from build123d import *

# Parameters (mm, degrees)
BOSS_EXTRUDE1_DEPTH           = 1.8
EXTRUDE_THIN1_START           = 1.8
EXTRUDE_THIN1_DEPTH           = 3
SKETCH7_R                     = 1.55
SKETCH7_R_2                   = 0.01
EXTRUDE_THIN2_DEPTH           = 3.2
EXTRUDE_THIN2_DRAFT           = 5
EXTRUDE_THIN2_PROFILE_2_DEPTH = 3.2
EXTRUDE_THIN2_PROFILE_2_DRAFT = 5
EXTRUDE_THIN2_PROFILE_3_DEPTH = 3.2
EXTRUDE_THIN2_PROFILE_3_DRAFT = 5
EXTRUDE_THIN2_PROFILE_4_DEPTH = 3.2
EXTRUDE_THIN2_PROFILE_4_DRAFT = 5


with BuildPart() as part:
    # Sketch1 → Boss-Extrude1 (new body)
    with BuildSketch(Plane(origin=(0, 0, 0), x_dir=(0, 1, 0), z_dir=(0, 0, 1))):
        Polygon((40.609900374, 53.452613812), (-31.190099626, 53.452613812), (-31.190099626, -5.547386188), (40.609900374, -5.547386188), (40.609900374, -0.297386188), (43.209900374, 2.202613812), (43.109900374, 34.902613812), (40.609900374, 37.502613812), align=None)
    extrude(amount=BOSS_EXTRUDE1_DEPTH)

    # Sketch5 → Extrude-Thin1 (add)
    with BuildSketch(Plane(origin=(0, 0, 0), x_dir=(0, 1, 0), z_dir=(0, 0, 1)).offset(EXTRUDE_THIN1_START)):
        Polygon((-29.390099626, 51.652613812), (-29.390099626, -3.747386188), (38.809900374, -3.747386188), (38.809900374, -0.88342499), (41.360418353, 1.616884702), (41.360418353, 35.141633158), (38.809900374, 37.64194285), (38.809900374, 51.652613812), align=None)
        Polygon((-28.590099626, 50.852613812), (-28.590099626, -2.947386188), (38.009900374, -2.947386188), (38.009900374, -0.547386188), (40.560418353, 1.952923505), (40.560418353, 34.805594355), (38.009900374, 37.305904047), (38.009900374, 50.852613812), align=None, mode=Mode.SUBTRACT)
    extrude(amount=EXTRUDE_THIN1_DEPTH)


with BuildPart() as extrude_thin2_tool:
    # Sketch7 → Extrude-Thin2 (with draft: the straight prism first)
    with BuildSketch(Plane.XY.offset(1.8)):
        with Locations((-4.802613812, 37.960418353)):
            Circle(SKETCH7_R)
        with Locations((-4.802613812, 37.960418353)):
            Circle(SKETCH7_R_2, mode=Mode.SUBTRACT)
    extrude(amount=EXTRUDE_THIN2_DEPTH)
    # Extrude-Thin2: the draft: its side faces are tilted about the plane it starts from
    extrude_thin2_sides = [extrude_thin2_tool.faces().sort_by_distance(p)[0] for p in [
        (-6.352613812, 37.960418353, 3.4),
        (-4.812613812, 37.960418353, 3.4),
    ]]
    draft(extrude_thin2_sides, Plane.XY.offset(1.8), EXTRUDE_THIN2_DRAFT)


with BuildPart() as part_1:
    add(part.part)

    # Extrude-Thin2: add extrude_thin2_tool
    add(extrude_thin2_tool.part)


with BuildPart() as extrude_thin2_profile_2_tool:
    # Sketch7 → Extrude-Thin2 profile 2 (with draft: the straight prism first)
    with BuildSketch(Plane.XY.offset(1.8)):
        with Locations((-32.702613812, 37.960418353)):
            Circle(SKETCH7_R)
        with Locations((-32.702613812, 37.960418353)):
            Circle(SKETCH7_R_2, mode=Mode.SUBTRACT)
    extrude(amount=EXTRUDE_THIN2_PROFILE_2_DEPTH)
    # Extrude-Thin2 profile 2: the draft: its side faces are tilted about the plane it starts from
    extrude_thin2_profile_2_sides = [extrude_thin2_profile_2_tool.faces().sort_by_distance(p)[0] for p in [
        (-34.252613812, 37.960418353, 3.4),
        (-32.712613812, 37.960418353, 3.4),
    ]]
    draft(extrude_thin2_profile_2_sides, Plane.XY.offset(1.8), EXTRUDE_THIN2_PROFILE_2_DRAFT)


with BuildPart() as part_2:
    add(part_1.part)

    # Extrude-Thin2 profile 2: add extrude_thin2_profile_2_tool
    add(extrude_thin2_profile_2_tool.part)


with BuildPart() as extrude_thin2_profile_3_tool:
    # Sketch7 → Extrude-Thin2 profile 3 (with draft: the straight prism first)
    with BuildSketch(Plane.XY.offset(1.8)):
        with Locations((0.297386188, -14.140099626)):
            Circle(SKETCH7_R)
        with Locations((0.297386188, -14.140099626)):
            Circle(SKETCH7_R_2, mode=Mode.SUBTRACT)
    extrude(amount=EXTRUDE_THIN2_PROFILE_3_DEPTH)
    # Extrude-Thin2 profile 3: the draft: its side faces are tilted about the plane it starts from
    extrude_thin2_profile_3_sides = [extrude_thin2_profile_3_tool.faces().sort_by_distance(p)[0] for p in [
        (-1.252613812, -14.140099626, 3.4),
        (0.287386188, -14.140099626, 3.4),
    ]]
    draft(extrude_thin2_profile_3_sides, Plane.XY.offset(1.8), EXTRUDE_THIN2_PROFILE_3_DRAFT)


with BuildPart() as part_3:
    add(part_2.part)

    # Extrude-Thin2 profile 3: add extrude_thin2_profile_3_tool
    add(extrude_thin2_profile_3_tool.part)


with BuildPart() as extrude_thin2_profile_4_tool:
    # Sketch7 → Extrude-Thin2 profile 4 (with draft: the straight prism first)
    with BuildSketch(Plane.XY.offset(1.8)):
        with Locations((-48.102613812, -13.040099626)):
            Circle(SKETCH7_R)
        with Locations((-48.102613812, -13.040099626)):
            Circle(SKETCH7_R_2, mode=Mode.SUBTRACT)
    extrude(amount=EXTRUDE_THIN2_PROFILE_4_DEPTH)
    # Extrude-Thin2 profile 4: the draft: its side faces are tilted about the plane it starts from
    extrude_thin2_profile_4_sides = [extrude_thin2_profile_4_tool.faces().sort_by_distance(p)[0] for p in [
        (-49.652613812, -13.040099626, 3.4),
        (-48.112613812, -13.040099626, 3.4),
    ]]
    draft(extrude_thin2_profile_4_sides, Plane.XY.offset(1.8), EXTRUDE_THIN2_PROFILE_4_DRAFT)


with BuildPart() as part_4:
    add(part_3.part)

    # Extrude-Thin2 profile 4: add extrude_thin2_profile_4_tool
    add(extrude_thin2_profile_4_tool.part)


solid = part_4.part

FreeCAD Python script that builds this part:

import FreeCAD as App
import Part
import Sketcher
from FreeCAD import Vector
Q = App.Units.Quantity


def faces_at(feature, points):
    """Names of the faces that lie closest to the given points."""
    faces = feature.Shape.Faces
    near = lambda p: min(range(len(faces)), key=lambda i: faces[i].distToShape(Part.Vertex(*p))[0])
    return sorted({f"Face{near(p) + 1}" for p in points})

doc = App.newDocument("Part")
body = doc.addObject("PartDesign::Body", "Body")

sketch1 = doc.addObject("Sketcher::SketchObject", "Sketch")
body.addObject(sketch1)
sketch1.AttachmentSupport = (doc.XY_Plane, [""])
sketch1.MapMode = "FlatFace"
sketch1.addGeometry([
    Part.LineSegment(Vector(-53.5, 40.6, 0), Vector(-53.5, -31.2, 0)),
    Part.LineSegment(Vector(-53.5, -31.2, 0), Vector(5.5, -31.2, 0)),
    Part.LineSegment(Vector(5.5, -31.2, 0), Vector(5.5, 40.6, 0)),
    Part.LineSegment(Vector(5.5, 40.6, 0), Vector(0.3, 40.6, 0)),
    Part.LineSegment(Vector(0.3, 40.6, 0), Vector(-2.2, 43.2, 0)),
    Part.LineSegment(Vector(-2.2, 43.2, 0), Vector(-34.9, 43.1, 0)),
    Part.LineSegment(Vector(-34.9, 43.1, 0), Vector(-37.5, 40.6, 0)),
    Part.LineSegment(Vector(-37.5, 40.6, 0), Vector(-53.5, 40.6, 0)),
], False)
sketch1.addConstraint([
    Sketcher.Constraint("Coincident", 0, 2, 1, 1),
    Sketcher.Constraint("Coincident", 1, 2, 2, 1),
    Sketcher.Constraint("Coincident", 2, 2, 3, 1),
    Sketcher.Constraint("Coincident", 3, 2, 4, 1),
    Sketcher.Constraint("Coincident", 4, 2, 5, 1),
    Sketcher.Constraint("Coincident", 5, 2, 6, 1),
    Sketcher.Constraint("Coincident", 6, 2, 7, 1),
    Sketcher.Constraint("Coincident", 7, 2, 0, 1),
    Sketcher.Constraint("Vertical", 0),
    Sketcher.Constraint("Horizontal", 1),
    Sketcher.Constraint("Vertical", 2),
    Sketcher.Constraint("Horizontal", 3),
    Sketcher.Constraint("Horizontal", 7),
    Sketcher.Constraint("Perpendicular", 4, 6),
    Sketcher.Constraint("Horizontal", 3, 2, 6, 2),
    Sketcher.Constraint("Equal", 4, 6),
    Sketcher.Constraint("DistanceX", 1, 1, 1, 2, Q("59 mm")),
    Sketcher.Constraint("DistanceY", 0, 2, 0, 1, Q("71.8 mm")),
    Sketcher.Constraint("DistanceX", 3, 2, 3, 1, Q("5.25 mm")),
    Sketcher.Constraint("DistanceX", 7, 2, 7, 1, Q("15.95 mm")),
    Sketcher.Constraint("DistanceX", 4, 2, 3, 2, Q("2.5 mm")),
    Sketcher.Constraint("DistanceY", 3, 2, 4, 2, Q("2.6 mm")),
    Sketcher.Constraint("DistanceY", 0, 2, -1, 1, Q("31.1901 mm")),
    Sketcher.Constraint("DistanceX", 0, 2, -1, 1, Q("53.452614 mm")),
])
pad1 = doc.addObject("PartDesign::Pad", "Pad")
body.addObject(pad1)
pad1.Profile = sketch1
pad1.Length = 1.8

sketch2 = doc.addObject("Sketcher::SketchObject", "Sketch001")
body.addObject(sketch2)
sketch2.AttachmentSupport = (doc.XY_Plane, [""])
sketch2.MapMode = "FlatFace"
sketch2.AttachmentOffset = App.Placement(Vector(0, 0, 1.8), App.Rotation())
sketch2.addGeometry([
    Part.LineSegment(Vector(-51.7, -29.4, 0), Vector(3.7, -29.4, 0)),
    Part.LineSegment(Vector(3.7, -29.4, 0), Vector(3.7, 38.8, 0)),
    Part.LineSegment(Vector(3.7, 38.8, 0), Vector(0.9, 38.8, 0)),
    Part.LineSegment(Vector(0.9, 38.8, 0), Vector(-1.6, 41.4, 0)),
    Part.LineSegment(Vector(-1.6, 41.4, 0), Vector(-35.1, 41.4, 0)),
    Part.LineSegment(Vector(-35.1, 41.4, 0), Vector(-37.6, 38.8, 0)),
    Part.LineSegment(Vector(-37.6, 38.8, 0), Vector(-51.7, 38.8, 0)),
    Part.LineSegment(Vector(-51.7, 38.8, 0), Vector(-51.7, -29.4, 0)),
    Part.LineSegment(Vector(2.9, -28.6, 0), Vector(-50.9, -28.6, 0)),
    Part.LineSegment(Vector(-50.9, -28.6, 0), Vector(-50.9, 38, 0)),
    Part.LineSegment(Vector(-50.9, 38, 0), Vector(-37.3, 38, 0)),
    Part.LineSegment(Vector(-37.3, 38, 0), Vector(-34.8, 40.6, 0)),
    Part.LineSegment(Vector(-34.8, 40.6, 0), Vector(-2, 40.6, 0)),
    Part.LineSegment(Vector(-2, 40.6, 0), Vector(0.5, 38, 0)),
    Part.LineSegment(Vector(0.5, 38, 0), Vector(2.9, 38, 0)),
    Part.LineSegment(Vector(2.9, 38, 0), Vector(2.9, -28.6, 0)),
], False)
sketch2.addConstraint([
    Sketcher.Constraint("Coincident", 0, 2, 1, 1),
    Sketcher.Constraint("Coincident", 1, 2, 2, 1),
    Sketcher.Constraint("Coincident", 2, 2, 3, 1),
    Sketcher.Constraint("Coincident", 3, 2, 4, 1),
    Sketcher.Constraint("Coincident", 4, 2, 5, 1),
    Sketcher.Constraint("Coincident", 5, 2, 6, 1),
    Sketcher.Constraint("Coincident", 6, 2, 7, 1),
    Sketcher.Constraint("Coincident", 7, 2, 0, 1),
    Sketcher.Constraint("Coincident", 8, 2, 9, 1),
    Sketcher.Constraint("Coincident", 9, 2, 10, 1),
    Sketcher.Constraint("Coincident", 10, 2, 11, 1),
    Sketcher.Constraint("Coincident", 11, 2, 12, 1),
    Sketcher.Constraint("Coincident", 12, 2, 13, 1),
    Sketcher.Constraint("Coincident", 13, 2, 14, 1),
    Sketcher.Constraint("Coincident", 14, 2, 15, 1),
    Sketcher.Constraint("Coincident", 15, 2, 8, 1),
    Sketcher.Constraint("Horizontal", 0),
    Sketcher.Constraint("Vertical", 1),
    Sketcher.Constraint("Horizontal", 2),
    Sketcher.Constraint("Horizontal", 4),
    Sketcher.Constraint("Horizontal", 6),
    Sketcher.Constraint("Vertical", 7),
    Sketcher.Constraint("Horizontal", 8),
    Sketcher.Constraint("Vertical", 9),
    Sketcher.Constraint("Horizontal", 10),
    Sketcher.Constraint("Horizontal", 12),
    Sketcher.Constraint("Horizontal", 14),
    Sketcher.Constraint("Vertical", 15),
    Sketcher.Constraint("Parallel", 5, 11),
    Sketcher.Constraint("Parallel", 3, 13),
    Sketcher.Constraint("Horizontal", 2, 2, 5, 2),
    Sketcher.Constraint("Horizontal", 10, 2, 13, 2),
    Sketcher.Constraint("Equal", 3, 5),
    Sketcher.Constraint("Equal", 5, 11),
    Sketcher.Constraint("DistanceX", 0, 1, 0, 2, Q("55.4 mm")),
    Sketcher.Constraint("DistanceX", 8, 2, 8, 1, Q("53.8 mm")),
    Sketcher.Constraint("DistanceX", 14, 1, 14, 2, Q("2.4 mm")),
    Sketcher.Constraint("DistanceY", 1, 1, 1, 2, Q("68.2 mm")),
    Sketcher.Constraint("DistanceY", 9, 1, 9, 2, Q("66.6 mm")),
    Sketcher.Constraint("DistanceX", 7, 2, 8, 2, Q("0.8 mm")),
    Sketcher.Constraint("DistanceY", 7, 2, 8, 2, Q("0.8 mm")),
    Sketcher.Constraint("DistanceX", 2, 2, 2, 1, Q("2.863961 mm")),
    Sketcher.Constraint("DistanceX", 4, 2, 4, 1, Q("33.524748 mm")),
    Sketcher.Constraint("DistanceX", 6, 2, 6, 1, Q("14.010671 mm")),
    Sketcher.Constraint("DistanceX", 10, 1, 10, 2, Q("13.54671 mm")),
    Sketcher.Constraint("DistanceY", 0, 2, -1, 1, Q("29.3901 mm")),
    Sketcher.Constraint("Distance", 3, Q("3.571651 mm")),
    Sketcher.Constraint("DistanceX", -1, 1, 0, 2, Q("3.747386 mm")),
])
pad2 = doc.addObject("PartDesign::Pad", "Pad001")
body.addObject(pad2)
pad2.Profile = sketch2
pad2.Length = 3
body2 = doc.addObject("PartDesign::Body", "Body001")

sketch3 = doc.addObject("Sketcher::SketchObject", "Sketch002")
body2.addObject(sketch3)
sketch3.AttachmentSupport = (doc.getObject("XY_Plane001"), [""])
sketch3.MapMode = "FlatFace"
sketch3.AttachmentOffset = App.Placement(Vector(0, 0, 1.8), App.Rotation())
sketch3.addGeometry([
    Part.Circle(Vector(-4.803, 37.96, 0), Vector(0, 0, 1), 1.55),
    Part.Circle(Vector(-4.803, 37.96, 0), Vector(0, 0, 1), 0.01),
], False)
sketch3.addConstraint([
    Sketcher.Constraint("Coincident", 1, 3, 0, 3),
    Sketcher.Constraint("Diameter", 0, Q("3.1 mm")),
    Sketcher.Constraint("Diameter", 1, Q("0.02 mm")),
    Sketcher.Constraint("DistanceY", -1, 1, 0, 3, Q("37.960418 mm")),
    Sketcher.Constraint("DistanceX", 0, 3, -1, 1, Q("4.802614 mm")),
])
pad3 = doc.addObject("PartDesign::Pad", "Pad002")
body2.addObject(pad3)
pad3.Profile = sketch3
pad3.Length = 3.2
doc.recompute()

datumplane = doc.addObject("PartDesign::Plane", "DatumPlane")
body2.addObject(datumplane)
datumplane.AttachmentSupport = (doc.getObject("XY_Plane001"), [""])
datumplane.MapMode = "FlatFace"
datumplane.AttachmentOffset = App.Placement(Vector(0, 0, 1.8), App.Rotation())
draft = doc.addObject("PartDesign::Draft", "Draft")
body2.addObject(draft)
draft.Base = (pad3, faces_at(pad3, [(-6.353, 37.96, 3.4), (-4.813, 37.96, 3.4)]))
draft.NeutralPlane = (datumplane, [""])
draft.Angle = 5
draft.Reversed = False
doc.recompute()

boolean = doc.addObject("PartDesign::Boolean", "Boolean")
body.addObject(boolean)
boolean.Type = "Fuse"
boolean.addObjects([body2])
body3 = doc.addObject("PartDesign::Body", "Body002")

sketch4 = doc.addObject("Sketcher::SketchObject", "Sketch003")
body3.addObject(sketch4)
sketch4.AttachmentSupport = (doc.getObject("XY_Plane002"), [""])
sketch4.MapMode = "FlatFace"
sketch4.AttachmentOffset = App.Placement(Vector(0, 0, 1.8), App.Rotation())
sketch4.addGeometry([
    Part.Circle(Vector(-32.703, 37.96, 0), Vector(0, 0, 1), 1.55),
    Part.Circle(Vector(-32.703, 37.96, 0), Vector(0, 0, 1), 0.01),
], False)
sketch4.addConstraint([
    Sketcher.Constraint("Coincident", 1, 3, 0, 3),
    Sketcher.Constraint("Diameter", 0, Q("3.1 mm")),
    Sketcher.Constraint("Diameter", 1, Q("0.02 mm")),
    Sketcher.Constraint("DistanceY", -1, 1, 0, 3, Q("37.960418 mm")),
    Sketcher.Constraint("DistanceX", 0, 3, -1, 1, Q("32.702614 mm")),
])
pad4 = doc.addObject("PartDesign::Pad", "Pad003")
body3.addObject(pad4)
pad4.Profile = sketch4
pad4.Length = 3.2
doc.recompute()

datumplane2 = doc.addObject("PartDesign::Plane", "DatumPlane001")
body3.addObject(datumplane2)
datumplane2.AttachmentSupport = (doc.getObject("XY_Plane002"), [""])
datumplane2.MapMode = "FlatFace"
datumplane2.AttachmentOffset = App.Placement(Vector(0, 0, 1.8), App.Rotation())
draft2 = doc.addObject("PartDesign::Draft", "Draft001")
body3.addObject(draft2)
draft2.Base = (pad4, faces_at(pad4, [(-34.253, 37.96, 3.4), (-32.713, 37.96, 3.4)]))
draft2.NeutralPlane = (datumplane2, [""])
draft2.Angle = 5
draft2.Reversed = False
doc.recompute()

boolean2 = doc.addObject("PartDesign::Boolean", "Boolean001")
body.addObject(boolean2)
boolean2.Type = "Fuse"
boolean2.addObjects([body3])
body4 = doc.addObject("PartDesign::Body", "Body003")

sketch5 = doc.addObject("Sketcher::SketchObject", "Sketch004")
body4.addObject(sketch5)
sketch5.AttachmentSupport = (doc.getObject("XY_Plane003"), [""])
sketch5.MapMode = "FlatFace"
sketch5.AttachmentOffset = App.Placement(Vector(0, 0, 1.8), App.Rotation())
sketch5.addGeometry([
    Part.Circle(Vector(0.297, -14.14, 0), Vector(0, 0, 1), 1.55),
    Part.Circle(Vector(0.297, -14.14, 0), Vector(0, 0, 1), 0.01),
], False)
sketch5.addConstraint([
    Sketcher.Constraint("Coincident", 1, 3, 0, 3),
    Sketcher.Constraint("Diameter", 0, Q("3.1 mm")),
    Sketcher.Constraint("Diameter", 1, Q("0.02 mm")),
    Sketcher.Constraint("DistanceY", 0, 3, -1, 1, Q("14.1401 mm")),
    Sketcher.Constraint("DistanceX", -1, 1, 0, 3, Q("0.297386 mm")),
])
pad5 = doc.addObject("PartDesign::Pad", "Pad004")
body4.addObject(pad5)
pad5.Profile = sketch5
pad5.Length = 3.2
doc.recompute()

datumplane3 = doc.addObject("PartDesign::Plane", "DatumPlane002")
body4.addObject(datumplane3)
datumplane3.AttachmentSupport = (doc.getObject("XY_Plane003"), [""])
datumplane3.MapMode = "FlatFace"
datumplane3.AttachmentOffset = App.Placement(Vector(0, 0, 1.8), App.Rotation())
draft3 = doc.addObject("PartDesign::Draft", "Draft002")
body4.addObject(draft3)
draft3.Base = (pad5, faces_at(pad5, [(-1.253, -14.14, 3.4), (0.287, -14.14, 3.4)]))
draft3.NeutralPlane = (datumplane3, [""])
draft3.Angle = 5
draft3.Reversed = False
doc.recompute()

boolean3 = doc.addObject("PartDesign::Boolean", "Boolean002")
body.addObject(boolean3)
boolean3.Type = "Fuse"
boolean3.addObjects([body4])
body5 = doc.addObject("PartDesign::Body", "Body004")

sketch6 = doc.addObject("Sketcher::SketchObject", "Sketch005")
body5.addObject(sketch6)
sketch6.AttachmentSupport = (doc.getObject("XY_Plane004"), [""])
sketch6.MapMode = "FlatFace"
sketch6.AttachmentOffset = App.Placement(Vector(0, 0, 1.8), App.Rotation())
sketch6.addGeometry([
    Part.Circle(Vector(-48.103, -13.04, 0), Vector(0, 0, 1), 1.55),
    Part.Circle(Vector(-48.103, -13.04, 0), Vector(0, 0, 1), 0.01),
], False)
sketch6.addConstraint([
    Sketcher.Constraint("Coincident", 1, 3, 0, 3),
    Sketcher.Constraint("Diameter", 0, Q("3.1 mm")),
    Sketcher.Constraint("Diameter", 1, Q("0.02 mm")),
    Sketcher.Constraint("DistanceY", 0, 3, -1, 1, Q("13.0401 mm")),
    Sketcher.Constraint("DistanceX", 0, 3, -1, 1, Q("48.102614 mm")),
])
pad6 = doc.addObject("PartDesign::Pad", "Pad005")
body5.addObject(pad6)
pad6.Profile = sketch6
pad6.Length = 3.2
doc.recompute()

datumplane4 = doc.addObject("PartDesign::Plane", "DatumPlane003")
body5.addObject(datumplane4)
datumplane4.AttachmentSupport = (doc.getObject("XY_Plane004"), [""])
datumplane4.MapMode = "FlatFace"
datumplane4.AttachmentOffset = App.Placement(Vector(0, 0, 1.8), App.Rotation())
draft4 = doc.addObject("PartDesign::Draft", "Draft003")
body5.addObject(draft4)
draft4.Base = (pad6, faces_at(pad6, [(-49.653, -13.04, 3.4), (-48.113, -13.04, 3.4)]))
draft4.NeutralPlane = (datumplane4, [""])
draft4.Angle = 5
draft4.Reversed = False
doc.recompute()

boolean4 = doc.addObject("PartDesign::Boolean", "Boolean003")
body.addObject(boolean4)
boolean4.Type = "Fuse"
boolean4.addObjects([body5])

doc.recompute()
